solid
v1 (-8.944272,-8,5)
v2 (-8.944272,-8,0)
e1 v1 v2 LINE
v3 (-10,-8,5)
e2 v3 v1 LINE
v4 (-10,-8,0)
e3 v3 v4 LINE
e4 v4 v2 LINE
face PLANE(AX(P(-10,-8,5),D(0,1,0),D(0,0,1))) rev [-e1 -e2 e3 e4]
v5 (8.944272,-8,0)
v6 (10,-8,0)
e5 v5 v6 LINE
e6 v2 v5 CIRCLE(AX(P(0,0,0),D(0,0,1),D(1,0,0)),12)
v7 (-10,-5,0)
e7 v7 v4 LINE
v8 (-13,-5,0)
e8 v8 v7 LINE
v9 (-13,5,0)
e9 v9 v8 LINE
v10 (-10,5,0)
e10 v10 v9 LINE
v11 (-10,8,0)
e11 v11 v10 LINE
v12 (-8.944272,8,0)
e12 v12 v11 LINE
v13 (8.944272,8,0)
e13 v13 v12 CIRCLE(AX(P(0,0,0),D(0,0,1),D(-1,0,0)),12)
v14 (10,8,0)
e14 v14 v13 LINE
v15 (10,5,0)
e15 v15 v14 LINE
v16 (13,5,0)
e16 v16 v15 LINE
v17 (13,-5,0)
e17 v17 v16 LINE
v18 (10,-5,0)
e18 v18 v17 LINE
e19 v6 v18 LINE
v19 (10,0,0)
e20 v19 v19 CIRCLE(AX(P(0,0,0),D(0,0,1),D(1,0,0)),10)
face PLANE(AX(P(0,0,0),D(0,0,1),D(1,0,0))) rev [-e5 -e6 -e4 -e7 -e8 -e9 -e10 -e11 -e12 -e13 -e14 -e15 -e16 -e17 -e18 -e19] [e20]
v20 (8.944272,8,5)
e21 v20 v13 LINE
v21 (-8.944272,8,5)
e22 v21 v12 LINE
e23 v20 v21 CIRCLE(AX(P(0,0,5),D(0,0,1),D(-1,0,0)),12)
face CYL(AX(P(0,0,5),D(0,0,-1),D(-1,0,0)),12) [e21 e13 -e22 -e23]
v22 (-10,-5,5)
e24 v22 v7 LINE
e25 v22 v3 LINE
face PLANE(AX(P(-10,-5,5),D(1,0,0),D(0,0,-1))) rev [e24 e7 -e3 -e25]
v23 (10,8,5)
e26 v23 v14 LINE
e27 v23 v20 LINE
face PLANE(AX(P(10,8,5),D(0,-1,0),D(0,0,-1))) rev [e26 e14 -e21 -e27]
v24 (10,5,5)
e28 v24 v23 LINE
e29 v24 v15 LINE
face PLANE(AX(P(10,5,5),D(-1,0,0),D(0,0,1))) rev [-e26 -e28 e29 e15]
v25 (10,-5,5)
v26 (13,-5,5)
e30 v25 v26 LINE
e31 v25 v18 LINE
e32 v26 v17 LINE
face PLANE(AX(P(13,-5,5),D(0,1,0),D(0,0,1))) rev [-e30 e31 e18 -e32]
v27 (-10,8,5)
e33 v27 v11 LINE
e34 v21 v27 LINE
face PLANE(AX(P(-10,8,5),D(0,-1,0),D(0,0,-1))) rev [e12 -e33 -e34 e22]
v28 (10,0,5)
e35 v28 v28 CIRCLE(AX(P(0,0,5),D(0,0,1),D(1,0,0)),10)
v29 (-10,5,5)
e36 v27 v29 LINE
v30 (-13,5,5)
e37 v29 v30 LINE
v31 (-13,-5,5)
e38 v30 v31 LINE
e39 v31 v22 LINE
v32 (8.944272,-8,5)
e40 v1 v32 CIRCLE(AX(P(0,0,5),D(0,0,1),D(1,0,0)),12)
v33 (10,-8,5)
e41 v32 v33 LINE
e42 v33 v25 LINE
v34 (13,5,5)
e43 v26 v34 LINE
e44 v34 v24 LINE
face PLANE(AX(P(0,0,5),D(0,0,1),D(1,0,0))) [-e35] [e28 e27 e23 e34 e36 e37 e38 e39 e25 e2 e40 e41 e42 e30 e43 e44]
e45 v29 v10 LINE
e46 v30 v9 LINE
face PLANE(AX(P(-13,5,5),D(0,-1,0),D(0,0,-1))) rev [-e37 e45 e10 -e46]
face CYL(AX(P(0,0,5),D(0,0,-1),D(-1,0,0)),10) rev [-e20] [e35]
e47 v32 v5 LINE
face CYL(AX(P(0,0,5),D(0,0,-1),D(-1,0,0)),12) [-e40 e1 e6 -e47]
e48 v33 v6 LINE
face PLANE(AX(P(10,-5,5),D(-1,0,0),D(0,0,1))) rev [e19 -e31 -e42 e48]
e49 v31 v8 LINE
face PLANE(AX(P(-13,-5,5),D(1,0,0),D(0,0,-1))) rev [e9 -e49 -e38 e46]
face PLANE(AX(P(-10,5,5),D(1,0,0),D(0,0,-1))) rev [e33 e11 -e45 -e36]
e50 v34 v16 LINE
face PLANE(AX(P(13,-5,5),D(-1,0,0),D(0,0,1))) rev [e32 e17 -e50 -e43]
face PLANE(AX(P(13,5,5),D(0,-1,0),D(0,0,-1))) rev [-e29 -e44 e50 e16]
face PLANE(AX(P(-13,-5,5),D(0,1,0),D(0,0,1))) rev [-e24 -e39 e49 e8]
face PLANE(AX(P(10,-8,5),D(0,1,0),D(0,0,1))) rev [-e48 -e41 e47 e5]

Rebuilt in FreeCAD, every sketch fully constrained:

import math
import FreeCAD as App
import Part
import Sketcher
Q = App.Units.Quantity

doc = App.newDocument("Part")
params = doc.addObject("Spreadsheet::Sheet", "Params")
for row, (alias, value) in enumerate([
    ("sketch1_diameter", "20 mm"),
    ("sketch1_radius", "12 mm"),
    ("sketch1_width", "3 mm"),
    ("sketch1_height", "10 mm"),
    ("pad1_length", "5 mm"),
], start=1):
    params.set(f"A{row}", alias)
    params.set(f"B{row}", "=" + value)
    params.setAlias(f"B{row}", alias)

body = doc.addObject("PartDesign::Body", "Body")

# Sketch on XY plane
sketch1 = body.newObject("Sketcher::SketchObject", "Sketch")
sketch1.AttachmentSupport = (doc.getObject("XY_Plane"), [""])
sketch1.MapMode = "FlatFace"
sketch1.addGeometry(Part.LineSegment(App.Vector(10, -5, 0), App.Vector(13, -5, 0)), False)
sketch1.addGeometry(Part.LineSegment(App.Vector(13, -5, 0), App.Vector(13, 5, 0)), False)
sketch1.addGeometry(Part.LineSegment(App.Vector(13, 5, 0), App.Vector(10, 5, 0)), False)
sketch1.addGeometry(Part.LineSegment(App.Vector(10, 5, 0), App.Vector(10, 8, 0)), False)
sketch1.addGeometry(Part.LineSegment(App.Vector(10, 8, 0), App.Vector(8.944272, 8, 0)), False)
sketch1.addGeometry(Part.ArcOfCircle(Part.Circle(App.Vector(0, 0, 0), App.Vector(0, 0, 1), 12), math.radians(41.810315), math.radians(138.189685)), False)
sketch1.addGeometry(Part.LineSegment(App.Vector(-8.944272, 8, 0), App.Vector(-10, 8, 0)), False)
sketch1.addGeometry(Part.LineSegment(App.Vector(-10, 8, 0), App.Vector(-10, 5, 0)), False)
sketch1.addGeometry(Part.LineSegment(App.Vector(-10, 5, 0), App.Vector(-13, 5, 0)), False)
sketch1.addGeometry(Part.LineSegment(App.Vector(-13, 5, 0), App.Vector(-13, -5, 0)), False)
sketch1.addGeometry(Part.LineSegment(App.Vector(-13, -5, 0), App.Vector(-10, -5, 0)), False)
sketch1.addGeometry(Part.LineSegment(App.Vector(-10, -5, 0), App.Vector(-10, -8, 0)), False)
sketch1.addGeometry(Part.LineSegment(App.Vector(-10, -8, 0), App.Vector(-8.944272, -8, 0)), False)
sketch1.addGeometry(Part.ArcOfCircle(Part.Circle(App.Vector(0, 0, 0), App.Vector(0, 0, 1), 12), math.radians(-138.189685), math.radians(-41.810315)), False)
sketch1.addGeometry(Part.LineSegment(App.Vector(8.944272, -8, 0), App.Vector(10, -8, 0)), False)
sketch1.addGeometry(Part.LineSegment(App.Vector(10, -8, 0), App.Vector(10, -5, 0)), False)
sketch1.addGeometry(Part.Circle(App.Vector(0, 0, 0), App.Vector(0, 0, 1), 10), False)
sketch1.addConstraint(Sketcher.Constraint("Coincident", 0, 2, 1, 1))
sketch1.addConstraint(Sketcher.Constraint("Coincident", 1, 2, 2, 1))
sketch1.addConstraint(Sketcher.Constraint("Coincident", 2, 2, 3, 1))
sketch1.addConstraint(Sketcher.Constraint("Coincident", 3, 2, 4, 1))
sketch1.addConstraint(Sketcher.Constraint("Coincident", 4, 2, 5, 1))
sketch1.addConstraint(Sketcher.Constraint("Coincident", 5, 2, 6, 1))
sketch1.addConstraint(Sketcher.Constraint("Coincident", 6, 2, 7, 1))
sketch1.addConstraint(Sketcher.Constraint("Coincident", 7, 2, 8, 1))
sketch1.addConstraint(Sketcher.Constraint("Coincident", 8, 2, 9, 1))
sketch1.addConstraint(Sketcher.Constraint("Coincident", 9, 2, 10, 1))
sketch1.addConstraint(Sketcher.Constraint("Coincident", 10, 2, 11, 1))
sketch1.addConstraint(Sketcher.Constraint("Coincident", 11, 2, 12, 1))
sketch1.addConstraint(Sketcher.Constraint("Coincident", 12, 2, 13, 1))
sketch1.addConstraint(Sketcher.Constraint("Coincident", 13, 2, 14, 1))
sketch1.addConstraint(Sketcher.Constraint("Coincident", 14, 2, 15, 1))
sketch1.addConstraint(Sketcher.Constraint("Coincident", 15, 2, 0, 1))
sketch1.addConstraint(Sketcher.Constraint("Horizontal", 0))
sketch1.addConstraint(Sketcher.Constraint("Vertical", 1))
sketch1.addConstraint(Sketcher.Constraint("Horizontal", 2))
sketch1.addConstraint(Sketcher.Constraint("Vertical", 3))
sketch1.addConstraint(Sketcher.Constraint("Horizontal", 4))
sketch1.addConstraint(Sketcher.Constraint("Horizontal", 6))
sketch1.addConstraint(Sketcher.Constraint("Vertical", 7))
sketch1.addConstraint(Sketcher.Constraint("Horizontal", 8))
sketch1.addConstraint(Sketcher.Constraint("Vertical", 9))
sketch1.addConstraint(Sketcher.Constraint("Horizontal", 10))
sketch1.addConstraint(Sketcher.Constraint("Vertical", 11))
sketch1.addConstraint(Sketcher.Constraint("Horizontal", 12))
sketch1.addConstraint(Sketcher.Constraint("Horizontal", 14))
sketch1.addConstraint(Sketcher.Constraint("Vertical", 15))
sketch1.addConstraint(Sketcher.Constraint("Coincident", 5, 3, -1, 1))
sketch1.addConstraint(Sketcher.Constraint("Coincident", 13, 3, -1, 1))
sketch1.addConstraint(Sketcher.Constraint("Coincident", 16, 3, -1, 1))
sketch1.addConstraint(Sketcher.Constraint("Equal", 5, 13))
sketch1.addConstraint(Sketcher.Constraint("Symmetric", 0, 2, 8, 2, -1, 1))
sketch1.addConstraint(Sketcher.Constraint("Symmetric", 2, 2, 10, 2, -1, 1))
sketch1.addConstraint(Sketcher.Constraint("Symmetric", 6, 2, 14, 2, -1, 1))
sketch1.addConstraint(Sketcher.Constraint("Symmetric", 3, 2, 6, 2, -2))
sketch1.addConstraint(Sketcher.Constraint("Horizontal", 2, 2, 7, 2))
sketch1.addConstraint(Sketcher.Constraint("Horizontal", 12, 2, 13, 2))
sketch1.addConstraint(Sketcher.Constraint("Equal", 10, 3))
sketch1.addConstraint(Sketcher.Constraint("Diameter", 16, Q("20 mm")))
sketch1.addConstraint(Sketcher.Constraint("Radius", 5, Q("12 mm")))
sketch1.addConstraint(Sketcher.Constraint("DistanceX", 0, 1, 0, 2, Q("3 mm")))
sketch1.addConstraint(Sketcher.Constraint("DistanceY", 1, 1, 1, 2, Q("10 mm")))
sketch1.addConstraint(Sketcher.Constraint("DistanceX", -1, 1, 0, 2, Q("13 mm")))
sketch1.setExpression("Constraints[41]", "Params.sketch1_diameter")
sketch1.setExpression("Constraints[42]", "Params.sketch1_radius")
sketch1.setExpression("Constraints[43]", "Params.sketch1_width")
sketch1.setExpression("Constraints[44]", "Params.sketch1_height")
pad1 = body.newObject("PartDesign::Pad", "Pad")
pad1.Profile = sketch1
pad1.setExpression("Length", "Params.pad1_length")

doc.recompute()
